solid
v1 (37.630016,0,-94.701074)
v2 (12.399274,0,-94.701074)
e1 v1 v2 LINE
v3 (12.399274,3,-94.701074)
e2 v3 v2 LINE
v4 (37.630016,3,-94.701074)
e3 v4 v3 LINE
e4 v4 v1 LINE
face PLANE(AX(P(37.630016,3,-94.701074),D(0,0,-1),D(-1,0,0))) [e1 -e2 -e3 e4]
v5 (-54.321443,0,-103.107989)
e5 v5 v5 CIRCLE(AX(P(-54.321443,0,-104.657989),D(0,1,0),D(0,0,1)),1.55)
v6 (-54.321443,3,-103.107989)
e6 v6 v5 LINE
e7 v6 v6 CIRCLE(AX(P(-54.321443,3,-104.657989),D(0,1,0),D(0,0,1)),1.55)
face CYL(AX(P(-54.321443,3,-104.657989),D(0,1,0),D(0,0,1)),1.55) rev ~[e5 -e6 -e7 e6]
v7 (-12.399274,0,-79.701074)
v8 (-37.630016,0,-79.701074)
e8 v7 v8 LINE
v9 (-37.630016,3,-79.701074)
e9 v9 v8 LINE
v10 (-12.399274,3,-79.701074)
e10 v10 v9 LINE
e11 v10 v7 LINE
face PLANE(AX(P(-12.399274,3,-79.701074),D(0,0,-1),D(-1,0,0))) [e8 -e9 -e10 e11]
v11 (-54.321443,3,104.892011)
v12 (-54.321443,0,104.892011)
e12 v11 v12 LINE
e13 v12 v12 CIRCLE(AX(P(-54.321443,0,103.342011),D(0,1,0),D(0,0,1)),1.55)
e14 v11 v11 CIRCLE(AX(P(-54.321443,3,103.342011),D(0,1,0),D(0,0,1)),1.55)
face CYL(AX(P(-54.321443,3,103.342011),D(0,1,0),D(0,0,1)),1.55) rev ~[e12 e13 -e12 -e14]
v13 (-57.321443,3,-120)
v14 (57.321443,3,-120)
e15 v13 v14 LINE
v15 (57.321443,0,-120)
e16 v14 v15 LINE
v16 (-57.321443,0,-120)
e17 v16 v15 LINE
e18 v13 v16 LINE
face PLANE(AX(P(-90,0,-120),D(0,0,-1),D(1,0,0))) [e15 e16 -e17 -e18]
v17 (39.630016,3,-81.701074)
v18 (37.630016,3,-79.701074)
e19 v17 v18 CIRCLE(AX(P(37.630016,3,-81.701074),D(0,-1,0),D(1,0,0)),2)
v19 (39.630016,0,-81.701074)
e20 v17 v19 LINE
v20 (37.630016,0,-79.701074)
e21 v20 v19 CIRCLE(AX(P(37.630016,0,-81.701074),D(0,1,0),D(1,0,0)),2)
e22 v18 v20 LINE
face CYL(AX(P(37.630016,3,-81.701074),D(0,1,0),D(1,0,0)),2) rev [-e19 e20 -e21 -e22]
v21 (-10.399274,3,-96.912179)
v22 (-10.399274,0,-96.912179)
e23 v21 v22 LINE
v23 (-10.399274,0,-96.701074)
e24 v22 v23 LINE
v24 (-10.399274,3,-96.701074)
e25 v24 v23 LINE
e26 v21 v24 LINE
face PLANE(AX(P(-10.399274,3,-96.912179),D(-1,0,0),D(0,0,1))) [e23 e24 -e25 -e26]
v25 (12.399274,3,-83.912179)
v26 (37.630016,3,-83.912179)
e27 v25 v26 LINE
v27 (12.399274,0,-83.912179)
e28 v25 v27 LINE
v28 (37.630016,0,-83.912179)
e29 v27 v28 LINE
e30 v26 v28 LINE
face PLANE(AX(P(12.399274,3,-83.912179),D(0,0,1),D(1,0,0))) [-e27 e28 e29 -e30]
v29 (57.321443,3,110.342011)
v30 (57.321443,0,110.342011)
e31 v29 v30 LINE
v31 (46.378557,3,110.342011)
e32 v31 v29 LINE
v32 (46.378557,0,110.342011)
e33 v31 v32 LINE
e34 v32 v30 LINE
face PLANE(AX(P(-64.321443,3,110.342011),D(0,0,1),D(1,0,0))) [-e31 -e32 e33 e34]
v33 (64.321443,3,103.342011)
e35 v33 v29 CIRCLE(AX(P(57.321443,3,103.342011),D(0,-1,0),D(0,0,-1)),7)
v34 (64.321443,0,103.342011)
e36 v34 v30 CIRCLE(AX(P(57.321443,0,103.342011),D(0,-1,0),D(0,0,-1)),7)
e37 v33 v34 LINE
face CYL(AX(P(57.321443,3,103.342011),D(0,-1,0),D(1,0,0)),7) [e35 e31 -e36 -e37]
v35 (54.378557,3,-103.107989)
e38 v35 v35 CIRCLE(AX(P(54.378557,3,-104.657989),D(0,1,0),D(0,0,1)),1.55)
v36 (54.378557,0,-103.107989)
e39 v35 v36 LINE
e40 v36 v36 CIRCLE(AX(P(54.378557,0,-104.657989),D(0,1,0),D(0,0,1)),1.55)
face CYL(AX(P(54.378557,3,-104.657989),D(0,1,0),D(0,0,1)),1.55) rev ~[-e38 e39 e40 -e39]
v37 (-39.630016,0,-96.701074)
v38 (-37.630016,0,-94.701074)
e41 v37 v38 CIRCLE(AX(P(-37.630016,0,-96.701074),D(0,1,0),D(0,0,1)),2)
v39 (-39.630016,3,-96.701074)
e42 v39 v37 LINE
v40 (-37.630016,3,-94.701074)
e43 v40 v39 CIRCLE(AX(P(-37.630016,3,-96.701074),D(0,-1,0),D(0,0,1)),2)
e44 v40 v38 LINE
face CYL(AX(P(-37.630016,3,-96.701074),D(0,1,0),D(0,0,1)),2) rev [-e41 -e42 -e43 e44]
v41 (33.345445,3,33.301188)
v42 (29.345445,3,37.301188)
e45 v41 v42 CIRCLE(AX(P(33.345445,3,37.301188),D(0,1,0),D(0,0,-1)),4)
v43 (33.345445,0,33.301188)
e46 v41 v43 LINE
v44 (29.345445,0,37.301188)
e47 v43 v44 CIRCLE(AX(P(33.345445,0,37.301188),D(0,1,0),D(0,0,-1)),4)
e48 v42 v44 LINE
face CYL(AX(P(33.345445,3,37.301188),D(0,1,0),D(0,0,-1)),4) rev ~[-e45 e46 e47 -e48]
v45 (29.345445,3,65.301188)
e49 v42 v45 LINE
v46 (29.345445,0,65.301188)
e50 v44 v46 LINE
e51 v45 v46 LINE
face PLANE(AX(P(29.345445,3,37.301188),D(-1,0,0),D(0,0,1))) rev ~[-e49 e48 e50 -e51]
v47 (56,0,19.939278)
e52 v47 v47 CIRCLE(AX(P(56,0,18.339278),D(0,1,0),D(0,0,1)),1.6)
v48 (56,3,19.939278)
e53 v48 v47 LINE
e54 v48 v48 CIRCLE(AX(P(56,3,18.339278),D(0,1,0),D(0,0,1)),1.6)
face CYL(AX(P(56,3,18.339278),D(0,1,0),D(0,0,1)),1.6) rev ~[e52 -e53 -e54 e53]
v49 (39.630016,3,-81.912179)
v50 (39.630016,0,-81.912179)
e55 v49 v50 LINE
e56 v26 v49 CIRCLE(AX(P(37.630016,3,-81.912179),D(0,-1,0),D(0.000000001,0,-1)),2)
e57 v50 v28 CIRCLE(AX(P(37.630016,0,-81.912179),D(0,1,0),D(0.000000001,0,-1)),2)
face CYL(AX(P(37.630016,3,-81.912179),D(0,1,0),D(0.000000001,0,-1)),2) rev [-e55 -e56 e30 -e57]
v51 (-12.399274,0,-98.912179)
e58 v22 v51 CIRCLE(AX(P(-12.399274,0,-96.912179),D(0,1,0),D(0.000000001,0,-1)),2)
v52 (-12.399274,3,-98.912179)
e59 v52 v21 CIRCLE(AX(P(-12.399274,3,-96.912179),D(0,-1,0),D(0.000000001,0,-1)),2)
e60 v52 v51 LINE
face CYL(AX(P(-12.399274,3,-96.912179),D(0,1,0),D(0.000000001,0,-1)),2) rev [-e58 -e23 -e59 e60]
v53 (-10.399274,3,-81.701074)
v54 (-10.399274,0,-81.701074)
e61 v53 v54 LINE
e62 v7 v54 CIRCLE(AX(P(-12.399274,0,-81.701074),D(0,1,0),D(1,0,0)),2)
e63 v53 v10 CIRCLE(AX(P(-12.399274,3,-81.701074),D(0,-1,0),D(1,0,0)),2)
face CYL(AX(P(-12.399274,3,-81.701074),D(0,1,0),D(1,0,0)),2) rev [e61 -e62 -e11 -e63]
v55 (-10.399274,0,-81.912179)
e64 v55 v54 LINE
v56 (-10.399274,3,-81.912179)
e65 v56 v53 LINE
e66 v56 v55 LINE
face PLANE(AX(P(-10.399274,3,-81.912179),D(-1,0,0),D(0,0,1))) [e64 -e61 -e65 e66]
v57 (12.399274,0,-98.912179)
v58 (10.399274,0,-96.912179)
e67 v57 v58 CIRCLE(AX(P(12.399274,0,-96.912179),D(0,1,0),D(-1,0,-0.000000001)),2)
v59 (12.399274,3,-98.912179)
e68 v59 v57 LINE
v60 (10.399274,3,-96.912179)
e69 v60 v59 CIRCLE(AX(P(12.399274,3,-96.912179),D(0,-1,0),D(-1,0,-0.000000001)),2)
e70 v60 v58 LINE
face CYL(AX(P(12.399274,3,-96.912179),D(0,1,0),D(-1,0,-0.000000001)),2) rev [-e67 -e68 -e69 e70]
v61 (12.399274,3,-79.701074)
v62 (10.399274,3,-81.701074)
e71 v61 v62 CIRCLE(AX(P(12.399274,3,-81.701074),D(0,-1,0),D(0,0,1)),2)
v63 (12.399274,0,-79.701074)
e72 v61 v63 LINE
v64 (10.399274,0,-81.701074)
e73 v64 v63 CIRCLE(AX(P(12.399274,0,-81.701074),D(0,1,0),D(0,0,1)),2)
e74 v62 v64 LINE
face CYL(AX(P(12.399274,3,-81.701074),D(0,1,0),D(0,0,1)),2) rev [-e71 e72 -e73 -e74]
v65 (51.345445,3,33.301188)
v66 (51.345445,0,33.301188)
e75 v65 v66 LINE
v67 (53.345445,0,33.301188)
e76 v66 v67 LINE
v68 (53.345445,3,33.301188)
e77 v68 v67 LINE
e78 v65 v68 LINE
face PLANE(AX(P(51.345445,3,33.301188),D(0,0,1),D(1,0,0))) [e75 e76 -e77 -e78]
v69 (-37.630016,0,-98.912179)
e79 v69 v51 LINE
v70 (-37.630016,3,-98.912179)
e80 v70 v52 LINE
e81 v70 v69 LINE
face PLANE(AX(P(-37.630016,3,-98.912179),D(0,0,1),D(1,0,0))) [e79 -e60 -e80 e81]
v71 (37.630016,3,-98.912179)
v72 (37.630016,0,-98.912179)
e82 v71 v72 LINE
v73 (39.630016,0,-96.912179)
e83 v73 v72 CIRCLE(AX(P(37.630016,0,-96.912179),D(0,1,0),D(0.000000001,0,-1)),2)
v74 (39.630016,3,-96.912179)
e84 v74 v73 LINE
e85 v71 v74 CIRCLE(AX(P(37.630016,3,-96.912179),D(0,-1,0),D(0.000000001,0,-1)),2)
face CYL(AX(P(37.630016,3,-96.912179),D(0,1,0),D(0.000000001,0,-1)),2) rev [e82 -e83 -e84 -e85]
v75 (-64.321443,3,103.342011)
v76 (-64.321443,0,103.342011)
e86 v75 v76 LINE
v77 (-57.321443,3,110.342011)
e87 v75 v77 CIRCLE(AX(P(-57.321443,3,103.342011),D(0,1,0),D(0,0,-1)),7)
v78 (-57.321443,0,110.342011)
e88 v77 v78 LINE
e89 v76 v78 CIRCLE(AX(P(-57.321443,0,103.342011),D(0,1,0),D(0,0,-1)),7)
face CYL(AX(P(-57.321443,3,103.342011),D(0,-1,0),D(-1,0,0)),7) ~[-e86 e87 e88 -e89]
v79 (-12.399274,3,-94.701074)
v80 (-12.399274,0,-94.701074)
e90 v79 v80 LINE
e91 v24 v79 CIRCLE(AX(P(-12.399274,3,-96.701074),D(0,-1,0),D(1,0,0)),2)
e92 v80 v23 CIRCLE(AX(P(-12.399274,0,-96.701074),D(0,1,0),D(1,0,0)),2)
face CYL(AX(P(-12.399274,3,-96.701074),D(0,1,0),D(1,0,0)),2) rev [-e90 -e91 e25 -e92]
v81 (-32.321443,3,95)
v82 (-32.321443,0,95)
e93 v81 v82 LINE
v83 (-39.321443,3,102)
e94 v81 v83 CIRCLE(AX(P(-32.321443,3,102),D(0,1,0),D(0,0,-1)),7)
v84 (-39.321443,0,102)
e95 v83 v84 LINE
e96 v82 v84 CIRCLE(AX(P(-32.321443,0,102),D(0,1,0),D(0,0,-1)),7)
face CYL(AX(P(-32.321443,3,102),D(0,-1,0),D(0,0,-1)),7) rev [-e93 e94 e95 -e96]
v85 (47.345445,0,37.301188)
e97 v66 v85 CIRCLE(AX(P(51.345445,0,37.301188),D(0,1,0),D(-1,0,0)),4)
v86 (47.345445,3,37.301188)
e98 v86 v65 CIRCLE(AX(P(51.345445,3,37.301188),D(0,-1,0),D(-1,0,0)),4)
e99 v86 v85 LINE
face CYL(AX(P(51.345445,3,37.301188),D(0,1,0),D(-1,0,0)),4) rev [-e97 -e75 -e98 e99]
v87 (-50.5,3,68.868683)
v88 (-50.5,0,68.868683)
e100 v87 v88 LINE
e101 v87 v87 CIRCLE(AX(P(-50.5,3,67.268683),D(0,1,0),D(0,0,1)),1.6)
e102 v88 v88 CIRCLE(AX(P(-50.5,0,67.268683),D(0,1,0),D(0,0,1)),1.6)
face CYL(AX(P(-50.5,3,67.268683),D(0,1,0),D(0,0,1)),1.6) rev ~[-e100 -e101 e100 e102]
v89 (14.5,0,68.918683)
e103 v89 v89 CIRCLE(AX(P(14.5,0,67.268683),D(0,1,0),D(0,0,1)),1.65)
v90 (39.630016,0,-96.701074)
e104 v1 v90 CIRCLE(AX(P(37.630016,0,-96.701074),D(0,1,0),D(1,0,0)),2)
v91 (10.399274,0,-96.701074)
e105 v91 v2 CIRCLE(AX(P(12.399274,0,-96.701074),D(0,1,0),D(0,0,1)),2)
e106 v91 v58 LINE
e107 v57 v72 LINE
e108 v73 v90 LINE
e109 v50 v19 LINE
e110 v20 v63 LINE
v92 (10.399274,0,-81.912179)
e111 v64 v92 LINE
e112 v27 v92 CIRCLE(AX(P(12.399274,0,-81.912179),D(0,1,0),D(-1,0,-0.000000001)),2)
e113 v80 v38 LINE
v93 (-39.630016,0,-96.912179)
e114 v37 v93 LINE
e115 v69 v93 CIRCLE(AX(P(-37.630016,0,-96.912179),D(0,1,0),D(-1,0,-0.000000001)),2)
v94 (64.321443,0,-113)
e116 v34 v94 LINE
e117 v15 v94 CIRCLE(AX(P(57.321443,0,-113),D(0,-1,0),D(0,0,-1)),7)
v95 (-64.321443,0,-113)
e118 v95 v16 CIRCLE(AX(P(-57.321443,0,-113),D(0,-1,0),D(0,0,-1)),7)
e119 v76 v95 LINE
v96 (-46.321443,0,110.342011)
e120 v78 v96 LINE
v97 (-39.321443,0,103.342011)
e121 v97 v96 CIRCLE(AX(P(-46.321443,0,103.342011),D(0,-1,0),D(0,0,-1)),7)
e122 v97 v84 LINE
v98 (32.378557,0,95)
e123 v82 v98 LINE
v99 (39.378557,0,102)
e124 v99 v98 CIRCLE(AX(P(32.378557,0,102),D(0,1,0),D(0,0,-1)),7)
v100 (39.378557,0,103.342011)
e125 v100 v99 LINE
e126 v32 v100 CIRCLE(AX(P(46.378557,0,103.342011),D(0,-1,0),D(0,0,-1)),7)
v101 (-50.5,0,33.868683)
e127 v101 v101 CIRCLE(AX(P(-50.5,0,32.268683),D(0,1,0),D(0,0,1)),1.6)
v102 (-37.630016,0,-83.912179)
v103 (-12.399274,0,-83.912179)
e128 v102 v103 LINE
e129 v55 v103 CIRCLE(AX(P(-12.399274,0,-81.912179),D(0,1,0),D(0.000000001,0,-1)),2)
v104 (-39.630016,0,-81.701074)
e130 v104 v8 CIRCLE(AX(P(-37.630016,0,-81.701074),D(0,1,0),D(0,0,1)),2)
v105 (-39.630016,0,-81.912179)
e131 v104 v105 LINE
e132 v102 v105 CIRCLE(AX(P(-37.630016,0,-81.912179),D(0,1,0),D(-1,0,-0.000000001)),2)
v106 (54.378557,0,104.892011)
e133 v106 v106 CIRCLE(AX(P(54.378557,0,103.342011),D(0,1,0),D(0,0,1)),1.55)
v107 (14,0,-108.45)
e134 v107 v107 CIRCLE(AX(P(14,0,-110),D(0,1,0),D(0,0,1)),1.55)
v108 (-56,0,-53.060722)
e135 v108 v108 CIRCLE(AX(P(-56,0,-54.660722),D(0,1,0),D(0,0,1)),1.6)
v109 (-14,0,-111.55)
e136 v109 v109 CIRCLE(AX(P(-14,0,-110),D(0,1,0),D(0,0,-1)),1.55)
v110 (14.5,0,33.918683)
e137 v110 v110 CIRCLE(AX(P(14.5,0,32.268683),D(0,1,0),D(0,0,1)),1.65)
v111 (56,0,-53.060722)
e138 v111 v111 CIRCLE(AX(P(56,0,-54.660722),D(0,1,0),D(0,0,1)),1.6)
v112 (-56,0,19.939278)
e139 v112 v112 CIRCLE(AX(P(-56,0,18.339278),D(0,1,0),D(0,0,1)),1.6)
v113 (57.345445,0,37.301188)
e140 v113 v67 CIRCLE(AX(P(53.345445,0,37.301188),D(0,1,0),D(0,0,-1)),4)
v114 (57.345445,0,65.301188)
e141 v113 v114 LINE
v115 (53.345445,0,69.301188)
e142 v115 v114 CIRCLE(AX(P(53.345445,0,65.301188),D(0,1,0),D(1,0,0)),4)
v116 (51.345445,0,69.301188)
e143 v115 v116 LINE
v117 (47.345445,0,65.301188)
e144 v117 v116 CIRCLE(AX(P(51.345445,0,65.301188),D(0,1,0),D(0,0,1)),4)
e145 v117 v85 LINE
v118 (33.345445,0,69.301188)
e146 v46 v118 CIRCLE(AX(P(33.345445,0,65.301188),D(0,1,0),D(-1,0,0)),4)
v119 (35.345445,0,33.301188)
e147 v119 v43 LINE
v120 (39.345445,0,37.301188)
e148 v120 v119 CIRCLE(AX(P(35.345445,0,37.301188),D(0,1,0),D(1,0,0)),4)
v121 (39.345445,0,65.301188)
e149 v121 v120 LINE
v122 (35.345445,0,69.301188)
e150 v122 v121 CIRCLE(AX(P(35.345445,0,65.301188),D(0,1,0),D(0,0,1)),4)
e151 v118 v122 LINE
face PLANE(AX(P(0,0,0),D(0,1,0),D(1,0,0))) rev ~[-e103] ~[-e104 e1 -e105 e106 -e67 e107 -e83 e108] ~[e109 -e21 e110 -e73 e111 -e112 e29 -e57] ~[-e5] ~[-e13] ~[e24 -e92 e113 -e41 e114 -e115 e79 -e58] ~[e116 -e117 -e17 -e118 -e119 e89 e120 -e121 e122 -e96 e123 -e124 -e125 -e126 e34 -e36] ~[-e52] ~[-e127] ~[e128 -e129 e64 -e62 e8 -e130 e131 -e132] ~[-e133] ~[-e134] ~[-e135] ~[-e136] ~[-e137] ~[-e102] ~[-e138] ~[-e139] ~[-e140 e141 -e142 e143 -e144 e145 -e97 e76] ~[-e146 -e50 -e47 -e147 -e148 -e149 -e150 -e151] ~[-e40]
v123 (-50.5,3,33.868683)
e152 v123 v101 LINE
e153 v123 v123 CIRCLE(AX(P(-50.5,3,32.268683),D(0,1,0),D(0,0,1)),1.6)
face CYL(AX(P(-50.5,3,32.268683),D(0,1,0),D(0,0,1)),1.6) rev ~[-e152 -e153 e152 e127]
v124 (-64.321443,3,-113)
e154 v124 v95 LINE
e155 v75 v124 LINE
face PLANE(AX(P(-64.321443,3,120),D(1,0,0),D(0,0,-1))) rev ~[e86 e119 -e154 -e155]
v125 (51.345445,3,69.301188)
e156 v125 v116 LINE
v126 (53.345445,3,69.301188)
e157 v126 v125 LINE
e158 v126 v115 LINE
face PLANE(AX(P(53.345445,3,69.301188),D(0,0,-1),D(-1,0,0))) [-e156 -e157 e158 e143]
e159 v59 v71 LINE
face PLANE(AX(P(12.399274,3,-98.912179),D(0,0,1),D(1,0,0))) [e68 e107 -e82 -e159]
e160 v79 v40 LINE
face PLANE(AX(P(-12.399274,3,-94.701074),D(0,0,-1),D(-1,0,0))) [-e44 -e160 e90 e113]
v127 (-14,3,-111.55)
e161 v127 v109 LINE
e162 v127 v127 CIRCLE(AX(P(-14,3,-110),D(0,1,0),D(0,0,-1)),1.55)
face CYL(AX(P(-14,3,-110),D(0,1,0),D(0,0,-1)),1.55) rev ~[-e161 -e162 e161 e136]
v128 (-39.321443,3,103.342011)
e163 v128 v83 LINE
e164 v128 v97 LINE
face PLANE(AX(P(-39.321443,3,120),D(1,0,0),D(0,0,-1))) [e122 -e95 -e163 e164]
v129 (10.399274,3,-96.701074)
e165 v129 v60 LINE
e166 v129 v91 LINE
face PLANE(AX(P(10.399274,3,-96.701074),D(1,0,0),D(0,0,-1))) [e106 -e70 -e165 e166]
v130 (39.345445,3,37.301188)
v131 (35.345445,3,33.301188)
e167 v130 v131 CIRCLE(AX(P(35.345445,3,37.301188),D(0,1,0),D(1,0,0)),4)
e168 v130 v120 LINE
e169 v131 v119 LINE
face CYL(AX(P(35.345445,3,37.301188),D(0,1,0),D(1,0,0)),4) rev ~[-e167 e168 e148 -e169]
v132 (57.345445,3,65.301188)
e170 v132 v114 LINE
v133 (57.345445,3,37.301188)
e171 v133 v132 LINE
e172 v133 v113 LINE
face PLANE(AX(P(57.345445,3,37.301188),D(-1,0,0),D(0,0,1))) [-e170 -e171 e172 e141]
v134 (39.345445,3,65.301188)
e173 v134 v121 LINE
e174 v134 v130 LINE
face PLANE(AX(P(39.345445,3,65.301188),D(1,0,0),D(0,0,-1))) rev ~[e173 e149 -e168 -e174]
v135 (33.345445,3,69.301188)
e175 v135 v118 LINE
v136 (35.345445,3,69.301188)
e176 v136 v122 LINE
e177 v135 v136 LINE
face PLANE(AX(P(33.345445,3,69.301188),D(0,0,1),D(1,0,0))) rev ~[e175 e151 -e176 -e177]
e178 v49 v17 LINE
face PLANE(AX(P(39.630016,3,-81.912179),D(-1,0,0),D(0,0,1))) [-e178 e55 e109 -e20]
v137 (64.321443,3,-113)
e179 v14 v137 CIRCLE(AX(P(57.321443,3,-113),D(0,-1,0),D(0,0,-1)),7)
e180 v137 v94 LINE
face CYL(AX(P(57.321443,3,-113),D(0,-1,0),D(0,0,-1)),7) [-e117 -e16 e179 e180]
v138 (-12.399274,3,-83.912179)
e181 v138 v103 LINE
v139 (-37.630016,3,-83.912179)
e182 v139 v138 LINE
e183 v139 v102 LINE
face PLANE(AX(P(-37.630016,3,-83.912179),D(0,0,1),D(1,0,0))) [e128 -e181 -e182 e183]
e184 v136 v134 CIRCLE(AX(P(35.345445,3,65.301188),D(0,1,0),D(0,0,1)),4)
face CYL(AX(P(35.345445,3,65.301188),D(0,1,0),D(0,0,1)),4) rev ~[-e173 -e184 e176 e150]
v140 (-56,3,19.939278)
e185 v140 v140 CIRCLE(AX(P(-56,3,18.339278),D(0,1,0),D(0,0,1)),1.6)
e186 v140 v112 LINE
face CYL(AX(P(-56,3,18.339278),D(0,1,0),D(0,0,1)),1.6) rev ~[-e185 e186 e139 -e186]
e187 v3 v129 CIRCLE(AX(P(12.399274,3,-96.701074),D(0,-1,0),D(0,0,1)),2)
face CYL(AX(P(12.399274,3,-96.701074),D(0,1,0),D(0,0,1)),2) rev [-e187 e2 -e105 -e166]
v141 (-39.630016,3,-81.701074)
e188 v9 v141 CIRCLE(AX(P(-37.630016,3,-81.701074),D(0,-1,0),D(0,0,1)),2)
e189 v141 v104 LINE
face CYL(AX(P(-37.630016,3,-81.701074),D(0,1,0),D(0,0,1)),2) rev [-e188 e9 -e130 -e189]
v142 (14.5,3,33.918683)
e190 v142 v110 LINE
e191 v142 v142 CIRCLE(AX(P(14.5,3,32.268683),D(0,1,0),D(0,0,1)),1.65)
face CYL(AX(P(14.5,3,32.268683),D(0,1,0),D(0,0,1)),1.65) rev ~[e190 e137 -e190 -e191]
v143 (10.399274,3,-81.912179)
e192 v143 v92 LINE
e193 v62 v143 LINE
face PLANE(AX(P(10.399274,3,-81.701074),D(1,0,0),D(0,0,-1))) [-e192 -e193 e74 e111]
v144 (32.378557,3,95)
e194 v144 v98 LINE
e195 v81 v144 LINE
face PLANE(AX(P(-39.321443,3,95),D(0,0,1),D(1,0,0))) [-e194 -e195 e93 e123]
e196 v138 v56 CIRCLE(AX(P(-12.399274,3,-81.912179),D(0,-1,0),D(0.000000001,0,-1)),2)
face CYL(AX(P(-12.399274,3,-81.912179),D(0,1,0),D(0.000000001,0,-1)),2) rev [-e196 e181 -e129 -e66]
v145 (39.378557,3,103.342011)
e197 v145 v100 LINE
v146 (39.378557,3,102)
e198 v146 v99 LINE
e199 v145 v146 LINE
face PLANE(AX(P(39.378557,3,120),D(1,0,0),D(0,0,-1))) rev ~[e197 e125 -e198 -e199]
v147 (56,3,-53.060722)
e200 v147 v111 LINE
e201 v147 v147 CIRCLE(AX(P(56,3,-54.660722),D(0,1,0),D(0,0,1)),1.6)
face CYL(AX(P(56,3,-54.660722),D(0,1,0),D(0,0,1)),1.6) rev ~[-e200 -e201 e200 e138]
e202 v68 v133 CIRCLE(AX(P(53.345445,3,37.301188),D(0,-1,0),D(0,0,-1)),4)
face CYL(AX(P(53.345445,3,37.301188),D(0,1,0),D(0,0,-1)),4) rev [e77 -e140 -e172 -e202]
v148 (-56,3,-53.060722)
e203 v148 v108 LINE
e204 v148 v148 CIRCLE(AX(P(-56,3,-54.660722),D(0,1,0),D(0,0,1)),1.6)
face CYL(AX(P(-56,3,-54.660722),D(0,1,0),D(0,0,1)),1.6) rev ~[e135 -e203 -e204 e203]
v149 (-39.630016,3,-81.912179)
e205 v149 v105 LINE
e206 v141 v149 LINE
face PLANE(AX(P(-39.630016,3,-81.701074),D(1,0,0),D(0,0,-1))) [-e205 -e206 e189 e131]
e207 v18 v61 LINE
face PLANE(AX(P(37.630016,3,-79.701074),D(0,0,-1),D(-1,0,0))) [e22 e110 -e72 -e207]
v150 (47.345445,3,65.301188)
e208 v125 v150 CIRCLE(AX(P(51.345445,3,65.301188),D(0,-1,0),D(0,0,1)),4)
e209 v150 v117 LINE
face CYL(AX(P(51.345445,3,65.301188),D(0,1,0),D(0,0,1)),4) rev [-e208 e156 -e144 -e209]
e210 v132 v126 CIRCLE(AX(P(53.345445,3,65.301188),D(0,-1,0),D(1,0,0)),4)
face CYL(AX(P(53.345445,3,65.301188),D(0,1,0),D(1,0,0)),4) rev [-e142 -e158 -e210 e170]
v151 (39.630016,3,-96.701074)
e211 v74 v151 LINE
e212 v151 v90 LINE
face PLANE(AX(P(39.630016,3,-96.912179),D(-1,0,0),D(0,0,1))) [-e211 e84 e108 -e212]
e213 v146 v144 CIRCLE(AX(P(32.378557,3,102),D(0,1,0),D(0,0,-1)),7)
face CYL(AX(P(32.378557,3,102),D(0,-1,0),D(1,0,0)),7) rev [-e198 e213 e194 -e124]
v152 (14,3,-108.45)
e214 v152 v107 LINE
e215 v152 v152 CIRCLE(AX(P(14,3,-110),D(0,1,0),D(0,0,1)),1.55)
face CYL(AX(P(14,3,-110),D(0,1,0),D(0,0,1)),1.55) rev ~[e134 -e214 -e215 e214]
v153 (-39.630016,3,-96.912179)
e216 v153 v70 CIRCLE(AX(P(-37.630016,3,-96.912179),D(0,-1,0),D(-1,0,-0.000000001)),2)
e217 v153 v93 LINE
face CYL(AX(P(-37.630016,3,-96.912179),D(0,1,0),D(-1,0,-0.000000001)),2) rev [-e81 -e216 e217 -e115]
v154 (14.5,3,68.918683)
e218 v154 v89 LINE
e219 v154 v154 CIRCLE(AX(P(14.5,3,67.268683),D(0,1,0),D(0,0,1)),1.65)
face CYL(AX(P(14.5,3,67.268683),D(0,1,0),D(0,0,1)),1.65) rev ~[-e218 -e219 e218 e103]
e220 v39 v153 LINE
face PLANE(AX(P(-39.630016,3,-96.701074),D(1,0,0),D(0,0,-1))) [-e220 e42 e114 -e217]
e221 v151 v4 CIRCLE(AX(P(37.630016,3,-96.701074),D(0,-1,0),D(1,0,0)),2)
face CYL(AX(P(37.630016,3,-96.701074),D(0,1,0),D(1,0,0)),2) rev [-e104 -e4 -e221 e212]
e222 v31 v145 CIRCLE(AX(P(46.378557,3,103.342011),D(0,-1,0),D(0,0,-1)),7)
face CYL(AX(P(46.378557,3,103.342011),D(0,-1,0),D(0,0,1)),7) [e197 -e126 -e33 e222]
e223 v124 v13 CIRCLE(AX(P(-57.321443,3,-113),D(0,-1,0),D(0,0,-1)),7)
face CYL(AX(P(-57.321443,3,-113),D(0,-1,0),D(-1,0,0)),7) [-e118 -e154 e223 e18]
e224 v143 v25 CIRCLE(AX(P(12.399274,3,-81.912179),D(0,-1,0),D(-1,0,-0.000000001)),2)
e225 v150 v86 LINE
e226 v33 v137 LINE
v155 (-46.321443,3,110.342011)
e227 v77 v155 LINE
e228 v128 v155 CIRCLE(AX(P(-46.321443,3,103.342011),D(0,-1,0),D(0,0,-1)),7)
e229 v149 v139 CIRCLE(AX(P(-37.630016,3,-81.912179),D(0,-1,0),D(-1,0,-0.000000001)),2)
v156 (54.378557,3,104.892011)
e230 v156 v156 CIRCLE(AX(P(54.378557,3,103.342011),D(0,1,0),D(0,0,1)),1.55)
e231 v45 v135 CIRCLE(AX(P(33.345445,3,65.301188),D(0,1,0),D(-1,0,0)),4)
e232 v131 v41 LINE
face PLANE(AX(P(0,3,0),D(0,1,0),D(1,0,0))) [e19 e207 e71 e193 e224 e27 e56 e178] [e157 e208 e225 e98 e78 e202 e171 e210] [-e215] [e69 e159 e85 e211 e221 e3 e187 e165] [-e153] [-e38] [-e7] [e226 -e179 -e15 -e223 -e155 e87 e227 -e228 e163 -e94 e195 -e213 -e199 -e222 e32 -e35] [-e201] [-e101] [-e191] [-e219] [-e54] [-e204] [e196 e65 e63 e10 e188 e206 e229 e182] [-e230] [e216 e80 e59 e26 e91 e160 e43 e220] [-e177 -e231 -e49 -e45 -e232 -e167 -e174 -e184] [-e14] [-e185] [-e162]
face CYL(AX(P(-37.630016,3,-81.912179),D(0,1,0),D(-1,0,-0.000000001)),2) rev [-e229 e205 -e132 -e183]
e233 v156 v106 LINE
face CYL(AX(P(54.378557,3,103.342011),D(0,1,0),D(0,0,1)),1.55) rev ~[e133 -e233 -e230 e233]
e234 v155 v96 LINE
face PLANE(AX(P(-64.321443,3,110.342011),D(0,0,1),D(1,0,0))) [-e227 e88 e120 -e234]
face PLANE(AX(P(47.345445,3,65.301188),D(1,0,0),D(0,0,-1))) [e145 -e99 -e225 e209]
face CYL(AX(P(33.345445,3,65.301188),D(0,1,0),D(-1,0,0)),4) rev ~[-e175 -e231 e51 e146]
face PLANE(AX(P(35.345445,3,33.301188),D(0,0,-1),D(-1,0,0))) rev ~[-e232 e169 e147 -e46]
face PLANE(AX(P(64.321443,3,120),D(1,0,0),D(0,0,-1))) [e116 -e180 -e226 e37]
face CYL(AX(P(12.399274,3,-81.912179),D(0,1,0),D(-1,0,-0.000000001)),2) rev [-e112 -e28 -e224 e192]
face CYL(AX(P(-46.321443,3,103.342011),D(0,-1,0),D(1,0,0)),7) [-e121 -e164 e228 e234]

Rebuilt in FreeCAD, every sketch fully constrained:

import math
import FreeCAD as App
import Part
import Sketcher

V = App.Vector


def edges_at(feature, points):
    """Names of the edges that pass closest to the given points."""
    edges = feature.Shape.Edges
    near = lambda p: min(range(len(edges)), key=lambda i: edges[i].distToShape(Part.Vertex(*p))[0])
    return sorted({f"Edge{near(p) + 1}" for p in points})


def add_polygon(sketch, points):
    """Adds a closed chain of lines whose ends are joined by coincident constraints."""
    first, n = sketch.GeometryCount, len(points)
    for a, b in zip(points, points[1:] + points[:1]):
        sketch.addGeometry(Part.LineSegment(App.Vector(*a, 0), App.Vector(*b, 0)), False)
    for i in range(n):
        sketch.addConstraint(Sketcher.Constraint("Coincident", first + i, 2, first + (i + 1) % n, 1))

doc = App.newDocument("Part")
body = doc.addObject("PartDesign::Body", "Body")

sketch1 = body.newObject("Sketcher::SketchObject", "Sketch")
sketch1.AttachmentSupport = (doc.getObject("XZ_Plane"), [""])
sketch1.MapMode = "FlatFace"
add_polygon(sketch1, [(-90, -120), (-90, 120), (90, 120), (90, -120)])
sketch1.addConstraint([
    Sketcher.Constraint("Vertical", 0),
    Sketcher.Constraint("Horizontal", 1),
    Sketcher.Constraint("Vertical", 2),
    Sketcher.Constraint("Horizontal", 3),
    Sketcher.Constraint("Symmetric", 0, 2, 2, 2, -1, 1),
    Sketcher.Constraint("DistanceX", 1, 1, 1, 2, 180.0),
    Sketcher.Constraint("DistanceY", 0, 1, 0, 2, 240.0),
])
pad1 = body.newObject("PartDesign::Pad", "Pad")
pad1.Profile = sketch1
pad1.Length = 3
pad1.Reversed = True

sketch2 = body.newObject("Sketcher::SketchObject", "Sketch001")
sketch2.AttachmentSupport = (doc.getObject("XZ_Plane"), [""])
sketch2.MapMode = "FlatFace"
sketch2.AttachmentOffset = App.Placement(V(0, 0, -3), App.Rotation())
sketch2.addGeometry([
    Part.Circle(V(14, -110, 0), V(0, 0, 1), 1.6),
    Part.Circle(V(-14, -110, 0), V(0, 0, 1), 1.6),
], False)
sketch2.addConstraint([
    Sketcher.Constraint("Equal", 0, 1),
    Sketcher.Constraint("Symmetric", 0, 3, 1, 3, -2),
    Sketcher.Constraint("Diameter", 0, 3.1),
    Sketcher.Constraint("DistanceX", -1, 1, 0, 3, 14.0),
    Sketcher.Constraint("DistanceY", 0, 3, -1, 1, 110.0),
])
pocket1 = body.newObject("PartDesign::Pocket", "Pocket")
pocket1.Profile = sketch2
pocket1.Type = "ThroughAll"
pocket1.Reversed = True

sketch3 = body.newObject("Sketcher::SketchObject", "Sketch002")
sketch3.AttachmentSupport = (doc.getObject("XZ_Plane"), [""])
sketch3.MapMode = "FlatFace"
sketch3.AttachmentOffset = App.Placement(V(0, 0, -3), App.Rotation())
sketch3.addGeometry([
    Part.Circle(V(-50.5, 32.3, 0), V(0, 0, 1), 1.6),
    Part.Circle(V(-50.5, 67.3, 0), V(0, 0, 1), 1.6),
    Part.Circle(V(14.5, 32.3, 0), V(0, 0, 1), 1.6),
    Part.Circle(V(14.5, 67.3, 0), V(0, 0, 1), 1.6),
], False)
sketch3.addConstraint([
    Sketcher.Constraint("Equal", 0, 1),
    Sketcher.Constraint("Equal", 2, 3),
    Sketcher.Constraint("Horizontal", 0, 3, 2, 3),
    Sketcher.Constraint("Horizontal", 1, 3, 3, 3),
    Sketcher.Constraint("Vertical", 0, 3, 1, 3),
    Sketcher.Constraint("Vertical", 2, 3, 3, 3),
    Sketcher.Constraint("Diameter", 0, 3.2),
    Sketcher.Constraint("Diameter", 2, 3.3),
    Sketcher.Constraint("DistanceY", 0, 3, 1, 3, 35.0),
    Sketcher.Constraint("DistanceX", 0, 3, 2, 3, 65.0),
    Sketcher.Constraint("DistanceX", 0, 3, -1, 1, 50.5),
    Sketcher.Constraint("DistanceY", -1, 1, 0, 3, 32.268683),
])
pocket2 = body.newObject("PartDesign::Pocket", "Pocket001")
pocket2.Profile = sketch3
pocket2.Type = "ThroughAll"
pocket2.Reversed = True

sketch4 = body.newObject("Sketcher::SketchObject", "Sketch003")
sketch4.AttachmentSupport = (doc.getObject("XZ_Plane"), [""])
sketch4.MapMode = "FlatFace"
sketch4.AttachmentOffset = App.Placement(V(0, 0, -3), App.Rotation())
sketch4.addGeometry([
    Part.Circle(V(56, -54.7, 0), V(0, 0, 1), 1.6),
    Part.Circle(V(56, 18.3, 0), V(0, 0, 1), 1.6),
    Part.Circle(V(-56, 18.3, 0), V(0, 0, 1), 1.6),
    Part.Circle(V(-56, -54.7, 0), V(0, 0, 1), 1.6),
], False)
sketch4.addConstraint([
    Sketcher.Constraint("Equal", 0, 1),
    Sketcher.Constraint("Equal", 1, 2),
    Sketcher.Constraint("Equal", 2, 3),
    Sketcher.Constraint("Symmetric", 1, 3, 2, 3, -2),
    Sketcher.Constraint("Symmetric", 0, 3, 3, 3, -2),
    Sketcher.Constraint("Vertical", 0, 3, 1, 3),
    Sketcher.Constraint("Diameter", 0, 3.2),
    Sketcher.Constraint("DistanceX", -1, 1, 0, 3, 56.0),
    Sketcher.Constraint("DistanceY", 0, 3, 1, 3, 73.0),
    Sketcher.Constraint("DistanceY", 0, 3, -1, 1, 54.660722),
])
pocket3 = body.newObject("PartDesign::Pocket", "Pocket002")
pocket3.Profile = sketch4
pocket3.Type = "ThroughAll"
pocket3.Reversed = True

sketch5 = body.newObject("Sketcher::SketchObject", "Sketch004")
sketch5.AttachmentSupport = (doc.getObject("XZ_Plane"), [""])
sketch5.MapMode = "FlatFace"
sketch5.AttachmentOffset = App.Placement(V(0, 0, -3), App.Rotation())
sketch5.addGeometry([
    Part.Circle(V(-54.3, 103.3, 0), V(0, 0, 1), 1.6),
    Part.Circle(V(54.4, 103.3, 0), V(0, 0, 1), 1.6),
    Part.Circle(V(-54.3, -104.7, 0), V(0, 0, 1), 1.6),
    Part.Circle(V(54.4, -104.7, 0), V(0, 0, 1), 1.6),
], False)
sketch5.addConstraint([
    Sketcher.Constraint("Equal", 0, 1),
    Sketcher.Constraint("Equal", 1, 2),
    Sketcher.Constraint("Equal", 2, 3),
    Sketcher.Constraint("Horizontal", 0, 3, 1, 3),
    Sketcher.Constraint("Horizontal", 2, 3, 3, 3),
    Sketcher.Constraint("Vertical", 0, 3, 2, 3),
    Sketcher.Constraint("Vertical", 1, 3, 3, 3),
    Sketcher.Constraint("Diameter", 0, 3.1),
    Sketcher.Constraint("DistanceY", 2, 3, 0, 3, 208.0),
    Sketcher.Constraint("DistanceX", 0, 3, 1, 3, 108.7),
    Sketcher.Constraint("DistanceY", -1, 1, 0, 3, 103.342011),
    Sketcher.Constraint("DistanceX", 0, 3, -1, 1, 54.321443),
])
pocket4 = body.newObject("PartDesign::Pocket", "Pocket003")
pocket4.Profile = sketch5
pocket4.Type = "ThroughAll"
pocket4.Reversed = True

sketch6 = body.newObject("Sketcher::SketchObject", "Sketch005")
sketch6.AttachmentSupport = (doc.getObject("XZ_Plane"), [""])
sketch6.MapMode = "FlatFace"
sketch6.AttachmentOffset = App.Placement(V(0, 0, -3), App.Rotation())
sketch6.addGeometry(Part.LineSegment(V(12.4, -79.7, 0), V(37.63, -79.7, 0)), False)
sketch6.addGeometry(Part.ArcOfCircle(Part.Circle(V(37.63, -81.7, 0), V(0, 0, 1), 2), math.radians(0), math.radians(90)), False)
sketch6.addGeometry(Part.LineSegment(V(39.63, -81.7, 0), V(39.63, -81.91, 0)), False)
sketch6.addGeometry(Part.ArcOfCircle(Part.Circle(V(37.63, -81.91, 0), V(0, 0, 1), 2), math.radians(-90), math.radians(0)), False)
sketch6.addGeometry(Part.LineSegment(V(37.63, -83.91, 0), V(12.4, -83.91, 0)), False)
sketch6.addGeometry(Part.ArcOfCircle(Part.Circle(V(12.4, -81.91, 0), V(0, 0, 1), 2), math.radians(-180), math.radians(-90)), False)
sketch6.addGeometry(Part.LineSegment(V(10.4, -81.91, 0), V(10.4, -81.7, 0)), False)
sketch6.addGeometry(Part.ArcOfCircle(Part.Circle(V(12.4, -81.7, 0), V(0, 0, 1), 2), math.radians(90), math.radians(180)), False)
sketch6.addGeometry(Part.LineSegment(V(-12.4, -83.91, 0), V(-37.63, -83.91, 0)), False)
sketch6.addGeometry(Part.ArcOfCircle(Part.Circle(V(-37.63, -81.91, 0), V(0, 0, 1), 2), math.radians(-180), math.radians(-90)), False)
sketch6.addGeometry(Part.LineSegment(V(-39.63, -81.91, 0), V(-39.63, -81.7, 0)), False)
sketch6.addGeometry(Part.ArcOfCircle(Part.Circle(V(-37.63, -81.7, 0), V(0, 0, 1), 2), math.radians(90), math.radians(180)), False)
sketch6.addGeometry(Part.LineSegment(V(-37.63, -79.7, 0), V(-12.4, -79.7, 0)), False)
sketch6.addGeometry(Part.ArcOfCircle(Part.Circle(V(-12.4, -81.7, 0), V(0, 0, 1), 2), math.radians(0), math.radians(90)), False)
sketch6.addGeometry(Part.LineSegment(V(-10.4, -81.7, 0), V(-10.4, -81.91, 0)), False)
sketch6.addGeometry(Part.ArcOfCircle(Part.Circle(V(-12.4, -81.91, 0), V(0, 0, 1), 2), math.radians(-90), math.radians(0)), False)
add_polygon(sketch6, [(-90, -120), (-90, 120), (-64.32, 120), (-64.32, -120)])
add_polygon(sketch6, [(-39.32, 95), (-39.32, 120), (39.38, 120), (39.38, 95)])
add_polygon(sketch6, [(64.32, -120), (64.32, 120), (90, 120), (90, -120)])
sketch6.addGeometry(Part.LineSegment(V(29.35, 37.3, 0), V(29.35, 65.3, 0)), False)
sketch6.addGeometry(Part.ArcOfCircle(Part.Circle(V(33.35, 65.3, 0), V(0, 0, 1), 4), math.radians(90), math.radians(180)), False)
sketch6.addGeometry(Part.LineSegment(V(33.35, 69.3, 0), V(35.35, 69.3, 0)), False)
sketch6.addGeometry(Part.ArcOfCircle(Part.Circle(V(35.35, 65.3, 0), V(0, 0, 1), 4), math.radians(0), math.radians(90)), False)
sketch6.addGeometry(Part.LineSegment(V(39.35, 65.3, 0), V(39.35, 37.3, 0)), False)
sketch6.addGeometry(Part.ArcOfCircle(Part.Circle(V(35.35, 37.3, 0), V(0, 0, 1), 4), math.radians(-90), math.radians(0)), False)
sketch6.addGeometry(Part.LineSegment(V(35.35, 33.3, 0), V(33.35, 33.3, 0)), False)
sketch6.addGeometry(Part.ArcOfCircle(Part.Circle(V(33.35, 37.3, 0), V(0, 0, 1), 4), math.radians(180), math.radians(270)), False)
sketch6.addGeometry(Part.LineSegment(V(53.35, 33.3, 0), V(51.35, 33.3, 0)), False)
sketch6.addGeometry(Part.ArcOfCircle(Part.Circle(V(51.35, 37.3, 0), V(0, 0, 1), 4), math.radians(180), math.radians(270)), False)
sketch6.addGeometry(Part.LineSegment(V(47.35, 37.3, 0), V(47.35, 65.3, 0)), False)
sketch6.addGeometry(Part.ArcOfCircle(Part.Circle(V(51.35, 65.3, 0), V(0, 0, 1), 4), math.radians(90), math.radians(180)), False)
sketch6.addGeometry(Part.LineSegment(V(51.35, 69.3, 0), V(53.35, 69.3, 0)), False)
sketch6.addGeometry(Part.ArcOfCircle(Part.Circle(V(53.35, 65.3, 0), V(0, 0, 1), 4), math.radians(0), math.radians(90)), False)
sketch6.addGeometry(Part.LineSegment(V(57.35, 65.3, 0), V(57.35, 37.3, 0)), False)
sketch6.addGeometry(Part.ArcOfCircle(Part.Circle(V(53.35, 37.3, 0), V(0, 0, 1), 4), math.radians(-90), math.radians(0)), False)
sketch6.addGeometry(Part.LineSegment(V(12.4, -94.7, 0), V(37.63, -94.7, 0)), False)
sketch6.addGeometry(Part.ArcOfCircle(Part.Circle(V(37.63, -96.7, 0), V(0, 0, 1), 2), math.radians(0), math.radians(90)), False)
sketch6.addGeometry(Part.LineSegment(V(39.63, -96.7, 0), V(39.63, -96.91, 0)), False)
sketch6.addGeometry(Part.ArcOfCircle(Part.Circle(V(37.63, -96.91, 0), V(0, 0, 1), 2), math.radians(-90), math.radians(0)), False)
sketch6.addGeometry(Part.LineSegment(V(37.63, -98.91, 0), V(12.4, -98.91, 0)), False)
sketch6.addGeometry(Part.ArcOfCircle(Part.Circle(V(12.4, -96.91, 0), V(0, 0, 1), 2), math.radians(-180), math.radians(-90)), False)
sketch6.addGeometry(Part.LineSegment(V(10.4, -96.91, 0), V(10.4, -96.7, 0)), False)
sketch6.addGeometry(Part.ArcOfCircle(Part.Circle(V(12.4, -96.7, 0), V(0, 0, 1), 2), math.radians(90), math.radians(180)), False)
sketch6.addGeometry(Part.LineSegment(V(-12.4, -98.91, 0), V(-37.63, -98.91, 0)), False)
sketch6.addGeometry(Part.ArcOfCircle(Part.Circle(V(-37.63, -96.91, 0), V(0, 0, 1), 2), math.radians(-180), math.radians(-90)), False)
sketch6.addGeometry(Part.LineSegment(V(-39.63, -96.91, 0), V(-39.63, -96.7, 0)), False)
sketch6.addGeometry(Part.ArcOfCircle(Part.Circle(V(-37.63, -96.7, 0), V(0, 0, 1), 2), math.radians(90), math.radians(180)), False)
sketch6.addGeometry(Part.LineSegment(V(-37.63, -94.7, 0), V(-12.4, -94.7, 0)), False)
sketch6.addGeometry(Part.ArcOfCircle(Part.Circle(V(-12.4, -96.7, 0), V(0, 0, 1), 2), math.radians(0), math.radians(90)), False)
sketch6.addGeometry(Part.LineSegment(V(-10.4, -96.7, 0), V(-10.4, -96.91, 0)), False)
sketch6.addGeometry(Part.ArcOfCircle(Part.Circle(V(-12.4, -96.91, 0), V(0, 0, 1), 2), math.radians(-90), math.radians(0)), False)
sketch6.addConstraint([
    Sketcher.Constraint("Tangent", 0, 2, 1, 2),
    Sketcher.Constraint("Tangent", 1, 1, 2, 1),
    Sketcher.Constraint("Tangent", 2, 2, 3, 2),
    Sketcher.Constraint("Tangent", 3, 1, 4, 1),
    Sketcher.Constraint("Tangent", 4, 2, 5, 2),
    Sketcher.Constraint("Tangent", 5, 1, 6, 1),
    Sketcher.Constraint("Tangent", 6, 2, 7, 2),
    Sketcher.Constraint("Tangent", 7, 1, 0, 1),
    Sketcher.Constraint("Tangent", 8, 2, 9, 2),
    Sketcher.Constraint("Tangent", 9, 1, 10, 1),
    Sketcher.Constraint("Tangent", 10, 2, 11, 2),
    Sketcher.Constraint("Tangent", 11, 1, 12, 1),
    Sketcher.Constraint("Tangent", 12, 2, 13, 2),
    Sketcher.Constraint("Tangent", 13, 1, 14, 1),
    Sketcher.Constraint("Tangent", 14, 2, 15, 2),
    Sketcher.Constraint("Tangent", 15, 1, 8, 1),
    Sketcher.Constraint("Tangent", 28, 2, 29, 2),
    Sketcher.Constraint("Tangent", 29, 1, 30, 1),
    Sketcher.Constraint("Tangent", 30, 2, 31, 2),
    Sketcher.Constraint("Tangent", 31, 1, 32, 1),
    Sketcher.Constraint("Tangent", 32, 2, 33, 2),
    Sketcher.Constraint("Tangent", 33, 1, 34, 1),
    Sketcher.Constraint("Tangent", 34, 2, 35, 2),
    Sketcher.Constraint("Tangent", 35, 1, 28, 1),
    Sketcher.Constraint("Tangent", 36, 2, 37, 2),
    Sketcher.Constraint("Tangent", 37, 1, 38, 1),
    Sketcher.Constraint("Tangent", 38, 2, 39, 2),
    Sketcher.Constraint("Tangent", 39, 1, 40, 1),
    Sketcher.Constraint("Tangent", 40, 2, 41, 2),
    Sketcher.Constraint("Tangent", 41, 1, 42, 1),
    Sketcher.Constraint("Tangent", 42, 2, 43, 2),
    Sketcher.Constraint("Tangent", 43, 1, 36, 1),
    Sketcher.Constraint("Tangent", 44, 2, 45, 2),
    Sketcher.Constraint("Tangent", 45, 1, 46, 1),
    Sketcher.Constraint("Tangent", 46, 2, 47, 2),
    Sketcher.Constraint("Tangent", 47, 1, 48, 1),
    Sketcher.Constraint("Tangent", 48, 2, 49, 2),
    Sketcher.Constraint("Tangent", 49, 1, 50, 1),
    Sketcher.Constraint("Tangent", 50, 2, 51, 2),
    Sketcher.Constraint("Tangent", 51, 1, 44, 1),
    Sketcher.Constraint("Tangent", 52, 2, 53, 2),
    Sketcher.Constraint("Tangent", 53, 1, 54, 1),
    Sketcher.Constraint("Tangent", 54, 2, 55, 2),
    Sketcher.Constraint("Tangent", 55, 1, 56, 1),
    Sketcher.Constraint("Tangent", 56, 2, 57, 2),
    Sketcher.Constraint("Tangent", 57, 1, 58, 1),
    Sketcher.Constraint("Tangent", 58, 2, 59, 2),
    Sketcher.Constraint("Tangent", 59, 1, 52, 1),
    Sketcher.Constraint("Horizontal", 0),
    Sketcher.Constraint("Vertical", 2),
    Sketcher.Constraint("Horizontal", 4),
    Sketcher.Constraint("Vertical", 6),
    Sketcher.Constraint("Horizontal", 8),
    Sketcher.Constraint("Vertical", 10),
    Sketcher.Constraint("Horizontal", 12),
    Sketcher.Constraint("Vertical", 14),
    Sketcher.Constraint("Vertical", 16),
    Sketcher.Constraint("Horizontal", 17),
    Sketcher.Constraint("Vertical", 18),
    Sketcher.Constraint("Horizontal", 19),
    Sketcher.Constraint("Vertical", 20),
    Sketcher.Constraint("Horizontal", 21),
    Sketcher.Constraint("Vertical", 22),
    Sketcher.Constraint("Horizontal", 23),
    Sketcher.Constraint("Vertical", 24),
    Sketcher.Constraint("Horizontal", 25),
    Sketcher.Constraint("Vertical", 26),
    Sketcher.Constraint("Horizontal", 27),
    Sketcher.Constraint("Vertical", 28),
    Sketcher.Constraint("Horizontal", 30),
    Sketcher.Constraint("Vertical", 32),
    Sketcher.Constraint("Horizontal", 34),
    Sketcher.Constraint("Horizontal", 36),
    Sketcher.Constraint("Vertical", 38),
    Sketcher.Constraint("Horizontal", 40),
    Sketcher.Constraint("Vertical", 42),
    Sketcher.Constraint("Horizontal", 44),
    Sketcher.Constraint("Vertical", 46),
    Sketcher.Constraint("Horizontal", 48),
    Sketcher.Constraint("Vertical", 50),
    Sketcher.Constraint("Horizontal", 52),
    Sketcher.Constraint("Vertical", 54),
    Sketcher.Constraint("Horizontal", 56),
    Sketcher.Constraint("Vertical", 58),
    Sketcher.Constraint("Equal", 1, 3),
    Sketcher.Constraint("Equal", 3, 5),
    Sketcher.Constraint("Equal", 5, 7),
    Sketcher.Constraint("Equal", 7, 9),
    Sketcher.Constraint("Equal", 9, 11),
    Sketcher.Constraint("Equal", 11, 13),
    Sketcher.Constraint("Equal", 13, 15),
    Sketcher.Constraint("Equal", 29, 31),
    Sketcher.Constraint("Equal", 31, 33),
    Sketcher.Constraint("Equal", 33, 35),
    Sketcher.Constraint("Equal", 35, 37),
    Sketcher.Constraint("Equal", 37, 39),
    Sketcher.Constraint("Equal", 39, 41),
    Sketcher.Constraint("Equal", 41, 43),
    Sketcher.Constraint("Equal", 15, 45),
    Sketcher.Constraint("Equal", 45, 47),
    Sketcher.Constraint("Equal", 47, 49),
    Sketcher.Constraint("Equal", 49, 51),
    Sketcher.Constraint("Equal", 51, 53),
    Sketcher.Constraint("Equal", 53, 55),
    Sketcher.Constraint("Equal", 55, 57),
    Sketcher.Constraint("Equal", 57, 59),
    Sketcher.Constraint("Symmetric", 18, 2, 24, 2, -1, 1),
    Sketcher.Constraint("Symmetric", 16, 2, 26, 2, -1, 1),
    Sketcher.Constraint("Symmetric", 3, 3, 9, 3, -2),
    Sketcher.Constraint("Symmetric", 7, 3, 13, 3, -2),
    Sketcher.Constraint("Symmetric", 47, 3, 53, 3, -2),
    Sketcher.Constraint("Symmetric", 51, 3, 57, 3, -2),
    Sketcher.Constraint("Horizontal", 35, 3, 37, 3),
    Sketcher.Constraint("Horizontal", 31, 3, 39, 3),
    Sketcher.Constraint("Horizontal", 17, 2, 20, 2),
    Sketcher.Constraint("Horizontal", 21, 2, 24, 2),
    Sketcher.Constraint("Vertical", 3, 3, 45, 3),
    Sketcher.Constraint("Vertical", 7, 3, 49, 3),
    Sketcher.Constraint("Equal", 34, 36),
    Sketcher.Constraint("Equal", 14, 46),
    Sketcher.Constraint("Radius", 1, 2.0),
    Sketcher.Constraint("Radius", 29, 4.0),
    Sketcher.Constraint("DistanceX", 30, 1, 30, 2, 2.0),
    Sketcher.Constraint("DistanceY", 16, 1, 16, 2, 240.0),
    Sketcher.Constraint("DistanceY", 20, 1, 20, 2, 25.0),
    Sketcher.Constraint("DistanceY", 28, 1, 28, 2, 28.0),
    Sketcher.Constraint("DistanceX", 21, 1, 21, 2, 78.7),
    Sketcher.Constraint("DistanceX", 16, 2, -1, 1, 90.0),
    Sketcher.Constraint("DistanceX", 0, 1, 0, 2, 25.230742),
    Sketcher.Constraint("DistanceX", 17, 1, 17, 2, 25.678557),
    Sketcher.Constraint("DistanceY", 2, 2, 2, 1, 0.211105),
    Sketcher.Constraint("DistanceY", 3, 3, -1, 1, 81.912179),
    Sketcher.Constraint("DistanceY", 47, 3, -1, 1, 96.912179),
    Sketcher.Constraint("DistanceX", -1, 1, 1, 3, 37.630016),
    Sketcher.Constraint("DistanceX", -1, 1, 29, 3, 33.345445),
    Sketcher.Constraint("DistanceY", -1, 1, 29, 3, 65.301188),
    Sketcher.Constraint("DistanceX", -1, 1, 37, 3, 51.345445),
    Sketcher.Constraint("DistanceX", 20, 2, -1, 1, 39.321443),
])
pocket5 = body.newObject("PartDesign::Pocket", "Pocket004")
pocket5.Profile = sketch6
pocket5.Type = "ThroughAll"
pocket5.Reversed = True

sketch7 = body.newObject("Sketcher::SketchObject", "Sketch006")
sketch7.AttachmentSupport = (doc.getObject("XZ_Plane"), [""])
sketch7.MapMode = "FlatFace"
sketch7.AttachmentOffset = App.Placement(V(0, 0, -3), App.Rotation())
add_polygon(sketch7, [(-64, 110), (-64, 120), (64, 120), (64, 110)])
sketch7.addConstraint([
    Sketcher.Constraint("Vertical", 0),
    Sketcher.Constraint("Horizontal", 1),
    Sketcher.Constraint("Vertical", 2),
    Sketcher.Constraint("Horizontal", 3),
    Sketcher.Constraint("DistanceY", -1, 1, 0, 2, 120.0),
    Sketcher.Constraint("DistanceY", 0, 1, 0, 2, 9.657989),
    Sketcher.Constraint("DistanceX", 1, 1, 1, 2, 128.642887),
    Sketcher.Constraint("DistanceX", 0, 2, -1, 1, 64.321443),
])
pocket6 = body.newObject("PartDesign::Pocket", "Pocket005")
pocket6.Profile = sketch7
pocket6.Type = "ThroughAll"
pocket6.Reversed = True
doc.recompute()

fillet = body.newObject("PartDesign::Fillet", "Fillet")
fillet.Base = (pocket6, edges_at(pocket6, [
    (-64.321, 1.5, -120),
    (-39.321, 1.5, 95),
    (39.379, 1.5, 95),
    (64.321, 1.5, -120),
    (39.379, 1.5, 110.342),
    (-39.321, 1.5, 110.342),
    (-64.321, 1.5, 110.342),
    (64.321, 1.5, 110.342),
]))
fillet.Radius = 7

doc.recompute()
